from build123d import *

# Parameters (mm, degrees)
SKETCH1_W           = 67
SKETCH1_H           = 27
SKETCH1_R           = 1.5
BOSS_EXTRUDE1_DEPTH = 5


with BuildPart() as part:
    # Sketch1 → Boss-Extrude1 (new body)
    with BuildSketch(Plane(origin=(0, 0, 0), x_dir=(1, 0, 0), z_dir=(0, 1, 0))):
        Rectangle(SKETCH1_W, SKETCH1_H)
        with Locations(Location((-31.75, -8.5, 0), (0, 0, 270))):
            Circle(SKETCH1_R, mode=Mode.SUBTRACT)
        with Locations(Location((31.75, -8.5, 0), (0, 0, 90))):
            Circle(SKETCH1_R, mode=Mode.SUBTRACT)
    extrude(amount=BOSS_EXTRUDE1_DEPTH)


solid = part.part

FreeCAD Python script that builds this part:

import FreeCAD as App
import Part
import Sketcher

V = App.Vector


def add_polygon(sketch, points):
    """Adds a closed chain of lines whose ends are joined by coincident constraints."""
    first, n = sketch.GeometryCount, len(points)
    for a, b in zip(points, points[1:] + points[:1]):
        sketch.addGeometry(Part.LineSegment(App.Vector(*a, 0), App.Vector(*b, 0)), False)
    for i in range(n):
        sketch.addConstraint(Sketcher.Constraint("Coincident", first + i, 2, first + (i + 1) % n, 1))

doc = App.newDocument("Part")
body = doc.addObject("PartDesign::Body", "Body")

sketch1 = body.newObject("Sketcher::SketchObject", "Sketch")
sketch1.AttachmentSupport = (doc.getObject("XZ_Plane"), [""])
sketch1.MapMode = "FlatFace"
add_polygon(sketch1, [(-33.5, -13.5), (-33.5, 13.5), (33.5, 13.5), (33.5, -13.5)])
sketch1.addGeometry(Part.Circle(V(-31.75, 8.5, 0), V(0, 0, 1), 1.5), False)
sketch1.addGeometry(Part.Circle(V(31.75, 8.5, 0), V(0, 0, 1), 1.5), False)
sketch1.addConstraint([
    Sketcher.Constraint("Vertical", 0),
    Sketcher.Constraint("Horizontal", 1),
    Sketcher.Constraint("Vertical", 2),
    Sketcher.Constraint("Horizontal", 3),
    Sketcher.Constraint("Equal", 4, 5),
    Sketcher.Constraint("Symmetric", 0, 2, 2, 2, -1, 1),
    Sketcher.Constraint("Symmetric", 4, 3, 5, 3, -2),
    Sketcher.Constraint("Diameter", 4, 3.0),
    Sketcher.Constraint("DistanceX", 1, 1, 1, 2, 67.0),
    Sketcher.Constraint("DistanceY", 0, 1, 0, 2, 27.0),
    Sketcher.Constraint("DistanceY", 4, 3, 0, 2, 5.0),
    Sketcher.Constraint("DistanceX", 4, 3, 5, 3, 63.5),
])
pad1 = body.newObject("PartDesign::Pad", "Pad")
pad1.Profile = sketch1
pad1.Length = 5
pad1.Reversed = True

doc.recompute()
